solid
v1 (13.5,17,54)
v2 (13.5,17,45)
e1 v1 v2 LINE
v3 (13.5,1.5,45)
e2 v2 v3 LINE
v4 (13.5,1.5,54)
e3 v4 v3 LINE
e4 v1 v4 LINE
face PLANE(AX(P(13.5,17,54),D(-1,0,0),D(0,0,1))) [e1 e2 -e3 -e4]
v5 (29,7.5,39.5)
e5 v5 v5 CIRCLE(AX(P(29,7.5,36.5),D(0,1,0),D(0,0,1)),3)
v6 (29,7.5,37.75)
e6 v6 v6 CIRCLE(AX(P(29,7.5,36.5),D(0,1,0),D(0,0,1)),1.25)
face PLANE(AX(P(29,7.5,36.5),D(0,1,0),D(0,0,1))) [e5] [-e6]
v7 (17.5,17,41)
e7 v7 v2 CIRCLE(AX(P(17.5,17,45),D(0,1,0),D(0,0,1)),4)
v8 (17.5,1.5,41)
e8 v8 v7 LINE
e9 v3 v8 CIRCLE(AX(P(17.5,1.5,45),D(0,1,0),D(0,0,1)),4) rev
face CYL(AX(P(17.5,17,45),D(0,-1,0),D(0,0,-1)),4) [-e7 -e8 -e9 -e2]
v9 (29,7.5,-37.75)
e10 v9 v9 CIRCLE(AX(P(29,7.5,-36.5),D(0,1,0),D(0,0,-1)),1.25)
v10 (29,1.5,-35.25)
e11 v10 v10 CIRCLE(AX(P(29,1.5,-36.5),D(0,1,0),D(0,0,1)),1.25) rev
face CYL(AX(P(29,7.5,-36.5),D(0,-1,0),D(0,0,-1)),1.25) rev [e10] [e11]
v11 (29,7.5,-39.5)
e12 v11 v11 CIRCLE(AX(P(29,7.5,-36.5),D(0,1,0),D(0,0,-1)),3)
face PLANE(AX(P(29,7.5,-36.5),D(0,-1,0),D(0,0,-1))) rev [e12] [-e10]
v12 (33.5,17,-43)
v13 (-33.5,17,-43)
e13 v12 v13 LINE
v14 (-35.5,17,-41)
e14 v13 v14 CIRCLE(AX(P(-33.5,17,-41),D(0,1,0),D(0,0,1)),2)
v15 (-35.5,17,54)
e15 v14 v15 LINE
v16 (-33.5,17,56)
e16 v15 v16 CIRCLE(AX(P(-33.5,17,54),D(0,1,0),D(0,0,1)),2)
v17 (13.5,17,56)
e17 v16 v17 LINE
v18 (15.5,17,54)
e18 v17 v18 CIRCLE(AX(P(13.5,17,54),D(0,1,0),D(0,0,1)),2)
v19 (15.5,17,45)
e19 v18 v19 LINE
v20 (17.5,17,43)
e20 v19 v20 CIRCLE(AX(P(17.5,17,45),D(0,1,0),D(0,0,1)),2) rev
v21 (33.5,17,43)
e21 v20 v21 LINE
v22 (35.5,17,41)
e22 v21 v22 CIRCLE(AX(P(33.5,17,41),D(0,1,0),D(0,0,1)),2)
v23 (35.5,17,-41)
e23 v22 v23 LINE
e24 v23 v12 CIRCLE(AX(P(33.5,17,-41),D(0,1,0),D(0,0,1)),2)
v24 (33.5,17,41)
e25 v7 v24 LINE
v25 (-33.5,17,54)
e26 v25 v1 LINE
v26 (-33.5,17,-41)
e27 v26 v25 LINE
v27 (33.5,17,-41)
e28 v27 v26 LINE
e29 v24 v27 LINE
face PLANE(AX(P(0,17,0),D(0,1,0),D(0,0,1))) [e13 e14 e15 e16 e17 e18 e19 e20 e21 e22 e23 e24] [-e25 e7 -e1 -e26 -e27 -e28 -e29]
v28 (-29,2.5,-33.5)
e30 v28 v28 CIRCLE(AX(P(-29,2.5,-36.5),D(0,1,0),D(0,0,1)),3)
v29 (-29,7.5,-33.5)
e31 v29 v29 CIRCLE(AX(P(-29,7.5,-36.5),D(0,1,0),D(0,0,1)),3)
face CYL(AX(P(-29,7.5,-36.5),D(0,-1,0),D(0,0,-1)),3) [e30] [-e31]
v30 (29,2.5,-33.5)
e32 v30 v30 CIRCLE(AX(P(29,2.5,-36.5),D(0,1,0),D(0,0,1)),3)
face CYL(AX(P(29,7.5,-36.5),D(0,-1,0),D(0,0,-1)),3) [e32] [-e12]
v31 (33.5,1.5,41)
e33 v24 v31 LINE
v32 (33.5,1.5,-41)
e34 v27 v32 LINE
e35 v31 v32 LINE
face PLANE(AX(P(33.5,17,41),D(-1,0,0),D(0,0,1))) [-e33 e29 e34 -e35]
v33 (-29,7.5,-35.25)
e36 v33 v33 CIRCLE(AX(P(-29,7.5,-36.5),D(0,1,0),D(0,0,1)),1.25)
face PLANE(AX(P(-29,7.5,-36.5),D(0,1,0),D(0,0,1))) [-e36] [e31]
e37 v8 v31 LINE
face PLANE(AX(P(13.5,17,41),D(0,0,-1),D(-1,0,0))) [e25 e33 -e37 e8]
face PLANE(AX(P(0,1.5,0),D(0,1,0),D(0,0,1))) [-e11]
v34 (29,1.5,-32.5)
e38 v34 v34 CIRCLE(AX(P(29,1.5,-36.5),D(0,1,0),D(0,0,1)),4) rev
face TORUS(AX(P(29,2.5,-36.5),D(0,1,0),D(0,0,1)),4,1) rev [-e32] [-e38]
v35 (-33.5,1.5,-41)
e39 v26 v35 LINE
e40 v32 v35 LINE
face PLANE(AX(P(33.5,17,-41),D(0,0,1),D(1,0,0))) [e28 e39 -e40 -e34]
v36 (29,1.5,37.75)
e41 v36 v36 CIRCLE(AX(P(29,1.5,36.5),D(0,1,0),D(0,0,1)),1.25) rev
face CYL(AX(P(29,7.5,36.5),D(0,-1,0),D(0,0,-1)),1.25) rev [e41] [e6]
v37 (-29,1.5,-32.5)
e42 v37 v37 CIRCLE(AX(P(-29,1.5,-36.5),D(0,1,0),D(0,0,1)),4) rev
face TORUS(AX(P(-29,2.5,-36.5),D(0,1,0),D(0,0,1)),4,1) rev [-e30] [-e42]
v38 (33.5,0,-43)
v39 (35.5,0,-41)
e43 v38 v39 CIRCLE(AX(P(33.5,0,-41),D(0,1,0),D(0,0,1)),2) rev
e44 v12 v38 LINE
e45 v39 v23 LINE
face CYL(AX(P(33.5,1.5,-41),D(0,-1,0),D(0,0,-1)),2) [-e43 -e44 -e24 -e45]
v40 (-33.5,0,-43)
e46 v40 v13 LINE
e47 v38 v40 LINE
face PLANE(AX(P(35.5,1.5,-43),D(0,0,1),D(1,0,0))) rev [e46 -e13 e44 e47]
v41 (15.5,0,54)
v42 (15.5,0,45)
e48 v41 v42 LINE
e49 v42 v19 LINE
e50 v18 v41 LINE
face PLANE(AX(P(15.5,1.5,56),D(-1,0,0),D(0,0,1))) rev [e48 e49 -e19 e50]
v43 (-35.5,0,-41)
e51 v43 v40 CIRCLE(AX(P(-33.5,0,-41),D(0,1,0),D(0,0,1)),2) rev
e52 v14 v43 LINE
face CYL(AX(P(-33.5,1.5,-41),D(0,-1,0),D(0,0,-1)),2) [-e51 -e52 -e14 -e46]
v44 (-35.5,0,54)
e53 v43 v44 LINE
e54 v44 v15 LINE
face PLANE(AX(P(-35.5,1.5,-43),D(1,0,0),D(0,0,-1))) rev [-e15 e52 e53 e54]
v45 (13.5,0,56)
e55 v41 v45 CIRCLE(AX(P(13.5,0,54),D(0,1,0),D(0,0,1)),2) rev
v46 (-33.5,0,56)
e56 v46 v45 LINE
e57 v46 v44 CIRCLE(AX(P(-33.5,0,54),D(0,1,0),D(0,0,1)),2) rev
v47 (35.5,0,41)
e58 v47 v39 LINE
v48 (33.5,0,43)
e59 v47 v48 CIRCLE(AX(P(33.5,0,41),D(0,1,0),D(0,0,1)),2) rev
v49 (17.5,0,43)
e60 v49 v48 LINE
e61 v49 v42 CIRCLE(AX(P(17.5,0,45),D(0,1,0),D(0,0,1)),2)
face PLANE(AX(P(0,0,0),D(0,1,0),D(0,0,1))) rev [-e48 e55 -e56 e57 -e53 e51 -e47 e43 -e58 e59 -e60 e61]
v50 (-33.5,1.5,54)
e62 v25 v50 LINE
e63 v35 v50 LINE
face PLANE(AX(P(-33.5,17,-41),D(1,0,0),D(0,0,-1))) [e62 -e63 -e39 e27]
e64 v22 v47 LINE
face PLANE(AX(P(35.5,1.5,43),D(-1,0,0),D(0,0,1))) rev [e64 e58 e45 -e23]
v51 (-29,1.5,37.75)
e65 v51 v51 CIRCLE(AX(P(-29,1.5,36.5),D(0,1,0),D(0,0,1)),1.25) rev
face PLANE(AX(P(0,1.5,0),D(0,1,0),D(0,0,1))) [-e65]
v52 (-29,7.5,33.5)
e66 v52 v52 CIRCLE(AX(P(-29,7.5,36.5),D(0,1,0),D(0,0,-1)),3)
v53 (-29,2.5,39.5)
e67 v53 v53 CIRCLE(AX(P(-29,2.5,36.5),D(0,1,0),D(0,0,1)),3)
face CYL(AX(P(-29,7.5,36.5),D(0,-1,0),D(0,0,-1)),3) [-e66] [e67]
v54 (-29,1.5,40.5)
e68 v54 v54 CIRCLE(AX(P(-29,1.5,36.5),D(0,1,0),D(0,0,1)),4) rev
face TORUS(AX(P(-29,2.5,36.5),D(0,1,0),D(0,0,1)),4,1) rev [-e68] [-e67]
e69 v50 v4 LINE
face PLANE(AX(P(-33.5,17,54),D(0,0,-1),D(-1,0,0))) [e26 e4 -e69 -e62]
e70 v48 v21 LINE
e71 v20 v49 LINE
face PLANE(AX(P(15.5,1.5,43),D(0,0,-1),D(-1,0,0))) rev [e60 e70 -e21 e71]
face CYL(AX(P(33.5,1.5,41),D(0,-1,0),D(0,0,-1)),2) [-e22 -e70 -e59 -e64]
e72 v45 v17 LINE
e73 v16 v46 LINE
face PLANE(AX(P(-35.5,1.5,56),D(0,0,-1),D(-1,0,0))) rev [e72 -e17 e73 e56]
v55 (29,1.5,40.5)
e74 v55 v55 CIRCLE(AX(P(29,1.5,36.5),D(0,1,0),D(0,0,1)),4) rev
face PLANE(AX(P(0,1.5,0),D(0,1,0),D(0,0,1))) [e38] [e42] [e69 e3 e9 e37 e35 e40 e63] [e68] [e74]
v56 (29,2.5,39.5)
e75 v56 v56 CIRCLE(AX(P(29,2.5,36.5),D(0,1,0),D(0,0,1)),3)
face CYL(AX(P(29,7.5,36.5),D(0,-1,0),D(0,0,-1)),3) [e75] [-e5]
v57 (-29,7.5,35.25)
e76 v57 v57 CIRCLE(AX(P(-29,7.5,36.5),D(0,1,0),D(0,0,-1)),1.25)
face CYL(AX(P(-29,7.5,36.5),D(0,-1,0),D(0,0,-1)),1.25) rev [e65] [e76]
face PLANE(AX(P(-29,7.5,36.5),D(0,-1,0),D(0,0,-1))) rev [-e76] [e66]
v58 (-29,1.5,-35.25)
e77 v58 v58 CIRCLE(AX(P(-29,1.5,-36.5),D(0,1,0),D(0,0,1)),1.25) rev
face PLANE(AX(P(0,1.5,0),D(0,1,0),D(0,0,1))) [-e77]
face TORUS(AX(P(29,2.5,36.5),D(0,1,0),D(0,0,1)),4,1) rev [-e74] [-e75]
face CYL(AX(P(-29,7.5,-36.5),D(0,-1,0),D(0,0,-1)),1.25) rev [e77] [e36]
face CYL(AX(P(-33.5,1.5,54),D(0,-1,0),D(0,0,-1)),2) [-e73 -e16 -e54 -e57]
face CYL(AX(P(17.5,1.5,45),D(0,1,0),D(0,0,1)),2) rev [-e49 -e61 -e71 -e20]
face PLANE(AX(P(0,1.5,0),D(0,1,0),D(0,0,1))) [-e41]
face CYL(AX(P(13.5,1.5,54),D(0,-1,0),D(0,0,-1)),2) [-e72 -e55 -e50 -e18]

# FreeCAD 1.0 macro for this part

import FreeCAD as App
import Part
import Sketcher
from FreeCAD import Vector
Q = App.Units.Quantity


def edges_at(feature, points):
    """Names of the edges that pass closest to the given points."""
    edges = feature.Shape.Edges
    near = lambda p: min(range(len(edges)), key=lambda i: edges[i].distToShape(Part.Vertex(*p))[0])
    return sorted({f"Edge{near(p) + 1}" for p in points})


def add_polygon(sketch, points):
    """Adds a closed chain of lines whose ends are joined by coincident constraints."""
    first, n = sketch.GeometryCount, len(points)
    for a, b in zip(points, points[1:] + points[:1]):
        sketch.addGeometry(Part.LineSegment(App.Vector(*a, 0), App.Vector(*b, 0)), False)
    for i in range(n):
        sketch.addConstraint(Sketcher.Constraint("Coincident", first + i, 2, first + (i + 1) % n, 1))

doc = App.newDocument("Part")
body = doc.addObject("PartDesign::Body", "Body")

# Sketch on XZ plane
sketch1 = body.newObject("Sketcher::SketchObject", "Sketch")
sketch1.AttachmentSupport = (doc.getObject("XZ_Plane"), [""])
sketch1.MapMode = "FlatFace"
add_polygon(sketch1, [(36, -43), (-36, -43), (-36, 56), (16, 56), (16, 43), (36, 43)])  # lines 0-5
sketch1.addConstraint(Sketcher.Constraint("Horizontal", 0))
sketch1.addConstraint(Sketcher.Constraint("Vertical", 1))
sketch1.addConstraint(Sketcher.Constraint("Horizontal", 2))
sketch1.addConstraint(Sketcher.Constraint("Vertical", 3))
sketch1.addConstraint(Sketcher.Constraint("Horizontal", 4))
sketch1.addConstraint(Sketcher.Constraint("Vertical", 5))
sketch1.addConstraint(Sketcher.Constraint("Symmetric", 0, 2, 4, 2, -1, 1))
sketch1.addConstraint(Sketcher.Constraint("DistanceX", 0, 2, 0, 1, Q("71 mm")))
sketch1.addConstraint(Sketcher.Constraint("DistanceX", 2, 1, 2, 2, Q("51 mm")))
sketch1.addConstraint(Sketcher.Constraint("DistanceY", 1, 1, 1, 2, Q("99 mm")))
sketch1.addConstraint(Sketcher.Constraint("DistanceY", 3, 2, 3, 1, Q("13 mm")))
pad1 = body.newObject("PartDesign::Pad", "Pad")
pad1.Profile = sketch1
pad1.Length = 1.5
pad1.Reversed = True

# Sketch on XZ plane
sketch2 = body.newObject("Sketcher::SketchObject", "Sketch001")
sketch2.AttachmentSupport = (doc.getObject("XZ_Plane"), [""])
sketch2.MapMode = "FlatFace"
sketch2.AttachmentOffset = App.Placement(Vector(0, 0, -1.5), App.Rotation())
sketch2.addGeometry(Part.Circle(Vector(-29, -36.5, 0), Vector(0, 0, 1), 3), False)
sketch2.addGeometry(Part.Circle(Vector(-29, -36.5, 0), Vector(0, 0, 1), 1.2), False)
sketch2.addGeometry(Part.Circle(Vector(29, -36.5, 0), Vector(0, 0, 1), 3), False)
sketch2.addGeometry(Part.Circle(Vector(29, -36.5, 0), Vector(0, 0, 1), 1.2), False)
sketch2.addGeometry(Part.Circle(Vector(29, 36.5, 0), Vector(0, 0, 1), 3), False)
sketch2.addGeometry(Part.Circle(Vector(29, 36.5, 0), Vector(0, 0, 1), 1.2), False)
sketch2.addGeometry(Part.Circle(Vector(-29, 36.5, 0), Vector(0, 0, 1), 3), False)
sketch2.addGeometry(Part.Circle(Vector(-29, 36.5, 0), Vector(0, 0, 1), 1.2), False)
sketch2.addConstraint(Sketcher.Constraint("Coincident", 1, 3, 0, 3))
sketch2.addConstraint(Sketcher.Constraint("Coincident", 3, 3, 2, 3))
sketch2.addConstraint(Sketcher.Constraint("Coincident", 5, 3, 4, 3))
sketch2.addConstraint(Sketcher.Constraint("Coincident", 7, 3, 6, 3))
sketch2.addConstraint(Sketcher.Constraint("Equal", 0, 2))
sketch2.addConstraint(Sketcher.Constraint("Equal", 1, 3))
sketch2.addConstraint(Sketcher.Constraint("Equal", 2, 4))
sketch2.addConstraint(Sketcher.Constraint("Equal", 3, 5))
sketch2.addConstraint(Sketcher.Constraint("Equal", 4, 6))
sketch2.addConstraint(Sketcher.Constraint("Equal", 5, 7))
sketch2.addConstraint(Sketcher.Constraint("Symmetric", 0, 3, 4, 3, -1, 1))
sketch2.addConstraint(Sketcher.Constraint("Symmetric", 2, 3, 6, 3, -1, 1))
sketch2.addConstraint(Sketcher.Constraint("Symmetric", 0, 3, 2, 3, -2))
sketch2.addConstraint(Sketcher.Constraint("Diameter", 0, Q("6 mm")))
sketch2.addConstraint(Sketcher.Constraint("Diameter", 1, Q("2.5 mm")))
sketch2.addConstraint(Sketcher.Constraint("DistanceX", 0, 3, -1, 1, Q("29 mm")))
sketch2.addConstraint(Sketcher.Constraint("DistanceY", 2, 3, 4, 3, Q("73 mm")))
pad2 = body.newObject("PartDesign::Pad", "Pad001")
pad2.Profile = sketch2
pad2.Length = 6
pad2.Reversed = True
doc.recompute()

fillet = body.newObject("PartDesign::Fillet", "Fillet")
fillet.Base = (pad2, edges_at(pad2, [
    (-29, 1.5, -39.5),
    (29, 1.5, -33.5),
    (29, 1.5, 33.5),
    (-29, 1.5, 39.5),
]))
fillet.Radius = 1

# Sketch on XZ plane
sketch3 = body.newObject("Sketcher::SketchObject", "Sketch002")
sketch3.AttachmentSupport = (doc.getObject("XZ_Plane"), [""])
sketch3.MapMode = "FlatFace"
sketch3.AttachmentOffset = App.Placement(Vector(0, 0, -1.5), App.Rotation())
add_polygon(sketch3, [(-36, -43), (-36, 56), (16, 56), (16, 43), (36, 43), (36, -43)])  # lines 0-5
add_polygon(sketch3, [(-34, 54), (-34, -41), (34, -41), (34, 41), (14, 41), (14, 54)])  # lines 6-11
sketch3.addConstraint(Sketcher.Constraint("Vertical", 0))
sketch3.addConstraint(Sketcher.Constraint("Horizontal", 1))
sketch3.addConstraint(Sketcher.Constraint("Vertical", 2))
sketch3.addConstraint(Sketcher.Constraint("Horizontal", 3))
sketch3.addConstraint(Sketcher.Constraint("Vertical", 4))
sketch3.addConstraint(Sketcher.Constraint("Horizontal", 5))
sketch3.addConstraint(Sketcher.Constraint("Vertical", 6))
sketch3.addConstraint(Sketcher.Constraint("Horizontal", 7))
sketch3.addConstraint(Sketcher.Constraint("Vertical", 8))
sketch3.addConstraint(Sketcher.Constraint("Horizontal", 9))
sketch3.addConstraint(Sketcher.Constraint("Vertical", 10))
sketch3.addConstraint(Sketcher.Constraint("Horizontal", 11))
sketch3.addConstraint(Sketcher.Constraint("Symmetric", 3, 2, 5, 2, -1, 1))
sketch3.addConstraint(Sketcher.Constraint("Symmetric", 6, 2, 8, 2, -1, 1))
sketch3.addConstraint(Sketcher.Constraint("Equal", 3, 9))
sketch3.addConstraint(Sketcher.Constraint("Equal", 2, 10))
sketch3.addConstraint(Sketcher.Constraint("DistanceX", 1, 1, 1, 2, Q("51 mm")))
sketch3.addConstraint(Sketcher.Constraint("DistanceX", 3, 1, 3, 2, Q("20 mm")))
sketch3.addConstraint(Sketcher.Constraint("DistanceX", 7, 1, 7, 2, Q("67 mm")))
sketch3.addConstraint(Sketcher.Constraint("DistanceY", 0, 1, 0, 2, Q("99 mm")))
sketch3.addConstraint(Sketcher.Constraint("DistanceY", 2, 2, 2, 1, Q("13 mm")))
sketch3.addConstraint(Sketcher.Constraint("DistanceY", 6, 2, 6, 1, Q("95 mm")))
pad3 = body.newObject("PartDesign::Pad", "Pad002")
pad3.Profile = sketch3
pad3.Length = 15.5
pad3.Reversed = True
doc.recompute()

fillet2 = body.newObject("PartDesign::Fillet", "Fillet001")
fillet2.Base = (pad3, edges_at(pad3, [
    (-35.5, 8.5, -43),
    (35.5, 8.5, -43),
    (35.5, 8.5, 43),
    (15.5, 8.5, 43),
    (15.5, 8.5, 56),
    (-35.5, 8.5, 56),
]))
fillet2.Radius = 2
doc.recompute()

fillet3 = body.newObject("PartDesign::Fillet", "Fillet002")
fillet3.Base = (fillet2, edges_at(fillet2, [(13.5, 9.25, 41)]))
fillet3.Radius = 4

doc.recompute()
